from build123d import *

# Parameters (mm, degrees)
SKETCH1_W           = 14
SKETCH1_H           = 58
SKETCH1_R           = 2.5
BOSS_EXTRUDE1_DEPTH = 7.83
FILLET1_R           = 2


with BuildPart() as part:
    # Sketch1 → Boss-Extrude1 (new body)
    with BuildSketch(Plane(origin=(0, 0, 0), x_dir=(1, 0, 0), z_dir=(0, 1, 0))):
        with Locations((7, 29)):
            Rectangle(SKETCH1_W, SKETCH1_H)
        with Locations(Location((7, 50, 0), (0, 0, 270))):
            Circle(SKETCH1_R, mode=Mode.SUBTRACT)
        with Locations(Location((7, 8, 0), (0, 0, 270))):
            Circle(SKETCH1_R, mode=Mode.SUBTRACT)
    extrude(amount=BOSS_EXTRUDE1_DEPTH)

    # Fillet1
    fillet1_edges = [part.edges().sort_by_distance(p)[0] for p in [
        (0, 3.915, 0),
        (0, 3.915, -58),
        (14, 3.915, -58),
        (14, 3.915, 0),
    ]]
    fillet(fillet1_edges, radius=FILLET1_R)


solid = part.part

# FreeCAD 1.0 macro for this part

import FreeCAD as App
import Part
import Sketcher

V = App.Vector
Q = App.Units.Quantity


def edges_at(feature, points):
    """Names of the edges that pass closest to the given points."""
    edges = feature.Shape.Edges
    near = lambda p: min(range(len(edges)), key=lambda i: edges[i].distToShape(Part.Vertex(*p))[0])
    return sorted({f"Edge{near(p) + 1}" for p in points})

doc = App.newDocument("Part")
params = doc.addObject("Spreadsheet::Sheet", "Params")
for row, (alias, value) in enumerate([
    ("sketch1_diameter", "5 mm"),
    ("sketch1_width", "14 mm"),
    ("sketch1_height", "58 mm"),
    ("pad1_length", "7.83 mm"),
    ("fillet_radius", "2 mm"),
], start=1):
    params.set(f"A{row}", alias)
    params.set(f"B{row}", "=" + value)
    params.setAlias(f"B{row}", alias)

body = doc.addObject("PartDesign::Body", "Body")

sketch1 = body.newObject("Sketcher::SketchObject", "Sketch")
sketch1.AttachmentSupport = (doc.getObject("XZ_Plane"), [""])
sketch1.MapMode = "FlatFace"
sketch1.addGeometry([
    Part.LineSegment(V(0, -58, 0), V(0, 0, 0)),
    Part.LineSegment(V(0, 0, 0), V(14, 0, 0)),
    Part.LineSegment(V(14, 0, 0), V(14, -58, 0)),
    Part.LineSegment(V(14, -58, 0), V(0, -58, 0)),
    Part.Circle(V(7, -8, 0), V(0, 0, 1), 2.5),
    Part.Circle(V(7, -50, 0), V(0, 0, 1), 2.5),
], False)
sketch1.addConstraint([
    Sketcher.Constraint("Coincident", 0, 2, 1, 1),
    Sketcher.Constraint("Coincident", 1, 2, 2, 1),
    Sketcher.Constraint("Coincident", 2, 2, 3, 1),
    Sketcher.Constraint("Coincident", 3, 2, 0, 1),
    Sketcher.Constraint("Vertical", 0),
    Sketcher.Constraint("Horizontal", 1),
    Sketcher.Constraint("Vertical", 2),
    Sketcher.Constraint("Horizontal", 3),
    Sketcher.Constraint("Coincident", 0, 2, -1, 1),
    Sketcher.Constraint("Equal", 4, 5),
    Sketcher.Constraint("Vertical", 4, 3, 5, 3),
    Sketcher.Constraint("Diameter", 4, Q("5 mm")),
    Sketcher.Constraint("DistanceX", 1, 1, 1, 2, Q("14 mm")),
    Sketcher.Constraint("DistanceY", 0, 1, 0, 2, Q("58 mm")),
    Sketcher.Constraint("DistanceX", -1, 1, 4, 3, Q("7 mm")),
    Sketcher.Constraint("DistanceY", 4, 3, -1, 1, Q("8 mm")),
    Sketcher.Constraint("DistanceY", 5, 3, -1, 1, Q("50 mm")),
])
sketch1.setExpression("Constraints[11]", "Params.sketch1_diameter")
sketch1.setExpression("Constraints[12]", "Params.sketch1_width")
sketch1.setExpression("Constraints[13]", "Params.sketch1_height")
pad1 = body.newObject("PartDesign::Pad", "Pad")
pad1.Profile = sketch1
pad1.setExpression("Length", "Params.pad1_length")
pad1.Reversed = True
doc.recompute()

fillet = body.newObject("PartDesign::Fillet", "Fillet")
fillet.Base = (pad1, edges_at(pad1, [
    (0, 3.915, 0),
    (0, 3.915, -58),
    (14, 3.915, -58),
    (14, 3.915, 0),
]))
fillet.setExpression("Radius", "Params.fillet_radius")

doc.recompute()
